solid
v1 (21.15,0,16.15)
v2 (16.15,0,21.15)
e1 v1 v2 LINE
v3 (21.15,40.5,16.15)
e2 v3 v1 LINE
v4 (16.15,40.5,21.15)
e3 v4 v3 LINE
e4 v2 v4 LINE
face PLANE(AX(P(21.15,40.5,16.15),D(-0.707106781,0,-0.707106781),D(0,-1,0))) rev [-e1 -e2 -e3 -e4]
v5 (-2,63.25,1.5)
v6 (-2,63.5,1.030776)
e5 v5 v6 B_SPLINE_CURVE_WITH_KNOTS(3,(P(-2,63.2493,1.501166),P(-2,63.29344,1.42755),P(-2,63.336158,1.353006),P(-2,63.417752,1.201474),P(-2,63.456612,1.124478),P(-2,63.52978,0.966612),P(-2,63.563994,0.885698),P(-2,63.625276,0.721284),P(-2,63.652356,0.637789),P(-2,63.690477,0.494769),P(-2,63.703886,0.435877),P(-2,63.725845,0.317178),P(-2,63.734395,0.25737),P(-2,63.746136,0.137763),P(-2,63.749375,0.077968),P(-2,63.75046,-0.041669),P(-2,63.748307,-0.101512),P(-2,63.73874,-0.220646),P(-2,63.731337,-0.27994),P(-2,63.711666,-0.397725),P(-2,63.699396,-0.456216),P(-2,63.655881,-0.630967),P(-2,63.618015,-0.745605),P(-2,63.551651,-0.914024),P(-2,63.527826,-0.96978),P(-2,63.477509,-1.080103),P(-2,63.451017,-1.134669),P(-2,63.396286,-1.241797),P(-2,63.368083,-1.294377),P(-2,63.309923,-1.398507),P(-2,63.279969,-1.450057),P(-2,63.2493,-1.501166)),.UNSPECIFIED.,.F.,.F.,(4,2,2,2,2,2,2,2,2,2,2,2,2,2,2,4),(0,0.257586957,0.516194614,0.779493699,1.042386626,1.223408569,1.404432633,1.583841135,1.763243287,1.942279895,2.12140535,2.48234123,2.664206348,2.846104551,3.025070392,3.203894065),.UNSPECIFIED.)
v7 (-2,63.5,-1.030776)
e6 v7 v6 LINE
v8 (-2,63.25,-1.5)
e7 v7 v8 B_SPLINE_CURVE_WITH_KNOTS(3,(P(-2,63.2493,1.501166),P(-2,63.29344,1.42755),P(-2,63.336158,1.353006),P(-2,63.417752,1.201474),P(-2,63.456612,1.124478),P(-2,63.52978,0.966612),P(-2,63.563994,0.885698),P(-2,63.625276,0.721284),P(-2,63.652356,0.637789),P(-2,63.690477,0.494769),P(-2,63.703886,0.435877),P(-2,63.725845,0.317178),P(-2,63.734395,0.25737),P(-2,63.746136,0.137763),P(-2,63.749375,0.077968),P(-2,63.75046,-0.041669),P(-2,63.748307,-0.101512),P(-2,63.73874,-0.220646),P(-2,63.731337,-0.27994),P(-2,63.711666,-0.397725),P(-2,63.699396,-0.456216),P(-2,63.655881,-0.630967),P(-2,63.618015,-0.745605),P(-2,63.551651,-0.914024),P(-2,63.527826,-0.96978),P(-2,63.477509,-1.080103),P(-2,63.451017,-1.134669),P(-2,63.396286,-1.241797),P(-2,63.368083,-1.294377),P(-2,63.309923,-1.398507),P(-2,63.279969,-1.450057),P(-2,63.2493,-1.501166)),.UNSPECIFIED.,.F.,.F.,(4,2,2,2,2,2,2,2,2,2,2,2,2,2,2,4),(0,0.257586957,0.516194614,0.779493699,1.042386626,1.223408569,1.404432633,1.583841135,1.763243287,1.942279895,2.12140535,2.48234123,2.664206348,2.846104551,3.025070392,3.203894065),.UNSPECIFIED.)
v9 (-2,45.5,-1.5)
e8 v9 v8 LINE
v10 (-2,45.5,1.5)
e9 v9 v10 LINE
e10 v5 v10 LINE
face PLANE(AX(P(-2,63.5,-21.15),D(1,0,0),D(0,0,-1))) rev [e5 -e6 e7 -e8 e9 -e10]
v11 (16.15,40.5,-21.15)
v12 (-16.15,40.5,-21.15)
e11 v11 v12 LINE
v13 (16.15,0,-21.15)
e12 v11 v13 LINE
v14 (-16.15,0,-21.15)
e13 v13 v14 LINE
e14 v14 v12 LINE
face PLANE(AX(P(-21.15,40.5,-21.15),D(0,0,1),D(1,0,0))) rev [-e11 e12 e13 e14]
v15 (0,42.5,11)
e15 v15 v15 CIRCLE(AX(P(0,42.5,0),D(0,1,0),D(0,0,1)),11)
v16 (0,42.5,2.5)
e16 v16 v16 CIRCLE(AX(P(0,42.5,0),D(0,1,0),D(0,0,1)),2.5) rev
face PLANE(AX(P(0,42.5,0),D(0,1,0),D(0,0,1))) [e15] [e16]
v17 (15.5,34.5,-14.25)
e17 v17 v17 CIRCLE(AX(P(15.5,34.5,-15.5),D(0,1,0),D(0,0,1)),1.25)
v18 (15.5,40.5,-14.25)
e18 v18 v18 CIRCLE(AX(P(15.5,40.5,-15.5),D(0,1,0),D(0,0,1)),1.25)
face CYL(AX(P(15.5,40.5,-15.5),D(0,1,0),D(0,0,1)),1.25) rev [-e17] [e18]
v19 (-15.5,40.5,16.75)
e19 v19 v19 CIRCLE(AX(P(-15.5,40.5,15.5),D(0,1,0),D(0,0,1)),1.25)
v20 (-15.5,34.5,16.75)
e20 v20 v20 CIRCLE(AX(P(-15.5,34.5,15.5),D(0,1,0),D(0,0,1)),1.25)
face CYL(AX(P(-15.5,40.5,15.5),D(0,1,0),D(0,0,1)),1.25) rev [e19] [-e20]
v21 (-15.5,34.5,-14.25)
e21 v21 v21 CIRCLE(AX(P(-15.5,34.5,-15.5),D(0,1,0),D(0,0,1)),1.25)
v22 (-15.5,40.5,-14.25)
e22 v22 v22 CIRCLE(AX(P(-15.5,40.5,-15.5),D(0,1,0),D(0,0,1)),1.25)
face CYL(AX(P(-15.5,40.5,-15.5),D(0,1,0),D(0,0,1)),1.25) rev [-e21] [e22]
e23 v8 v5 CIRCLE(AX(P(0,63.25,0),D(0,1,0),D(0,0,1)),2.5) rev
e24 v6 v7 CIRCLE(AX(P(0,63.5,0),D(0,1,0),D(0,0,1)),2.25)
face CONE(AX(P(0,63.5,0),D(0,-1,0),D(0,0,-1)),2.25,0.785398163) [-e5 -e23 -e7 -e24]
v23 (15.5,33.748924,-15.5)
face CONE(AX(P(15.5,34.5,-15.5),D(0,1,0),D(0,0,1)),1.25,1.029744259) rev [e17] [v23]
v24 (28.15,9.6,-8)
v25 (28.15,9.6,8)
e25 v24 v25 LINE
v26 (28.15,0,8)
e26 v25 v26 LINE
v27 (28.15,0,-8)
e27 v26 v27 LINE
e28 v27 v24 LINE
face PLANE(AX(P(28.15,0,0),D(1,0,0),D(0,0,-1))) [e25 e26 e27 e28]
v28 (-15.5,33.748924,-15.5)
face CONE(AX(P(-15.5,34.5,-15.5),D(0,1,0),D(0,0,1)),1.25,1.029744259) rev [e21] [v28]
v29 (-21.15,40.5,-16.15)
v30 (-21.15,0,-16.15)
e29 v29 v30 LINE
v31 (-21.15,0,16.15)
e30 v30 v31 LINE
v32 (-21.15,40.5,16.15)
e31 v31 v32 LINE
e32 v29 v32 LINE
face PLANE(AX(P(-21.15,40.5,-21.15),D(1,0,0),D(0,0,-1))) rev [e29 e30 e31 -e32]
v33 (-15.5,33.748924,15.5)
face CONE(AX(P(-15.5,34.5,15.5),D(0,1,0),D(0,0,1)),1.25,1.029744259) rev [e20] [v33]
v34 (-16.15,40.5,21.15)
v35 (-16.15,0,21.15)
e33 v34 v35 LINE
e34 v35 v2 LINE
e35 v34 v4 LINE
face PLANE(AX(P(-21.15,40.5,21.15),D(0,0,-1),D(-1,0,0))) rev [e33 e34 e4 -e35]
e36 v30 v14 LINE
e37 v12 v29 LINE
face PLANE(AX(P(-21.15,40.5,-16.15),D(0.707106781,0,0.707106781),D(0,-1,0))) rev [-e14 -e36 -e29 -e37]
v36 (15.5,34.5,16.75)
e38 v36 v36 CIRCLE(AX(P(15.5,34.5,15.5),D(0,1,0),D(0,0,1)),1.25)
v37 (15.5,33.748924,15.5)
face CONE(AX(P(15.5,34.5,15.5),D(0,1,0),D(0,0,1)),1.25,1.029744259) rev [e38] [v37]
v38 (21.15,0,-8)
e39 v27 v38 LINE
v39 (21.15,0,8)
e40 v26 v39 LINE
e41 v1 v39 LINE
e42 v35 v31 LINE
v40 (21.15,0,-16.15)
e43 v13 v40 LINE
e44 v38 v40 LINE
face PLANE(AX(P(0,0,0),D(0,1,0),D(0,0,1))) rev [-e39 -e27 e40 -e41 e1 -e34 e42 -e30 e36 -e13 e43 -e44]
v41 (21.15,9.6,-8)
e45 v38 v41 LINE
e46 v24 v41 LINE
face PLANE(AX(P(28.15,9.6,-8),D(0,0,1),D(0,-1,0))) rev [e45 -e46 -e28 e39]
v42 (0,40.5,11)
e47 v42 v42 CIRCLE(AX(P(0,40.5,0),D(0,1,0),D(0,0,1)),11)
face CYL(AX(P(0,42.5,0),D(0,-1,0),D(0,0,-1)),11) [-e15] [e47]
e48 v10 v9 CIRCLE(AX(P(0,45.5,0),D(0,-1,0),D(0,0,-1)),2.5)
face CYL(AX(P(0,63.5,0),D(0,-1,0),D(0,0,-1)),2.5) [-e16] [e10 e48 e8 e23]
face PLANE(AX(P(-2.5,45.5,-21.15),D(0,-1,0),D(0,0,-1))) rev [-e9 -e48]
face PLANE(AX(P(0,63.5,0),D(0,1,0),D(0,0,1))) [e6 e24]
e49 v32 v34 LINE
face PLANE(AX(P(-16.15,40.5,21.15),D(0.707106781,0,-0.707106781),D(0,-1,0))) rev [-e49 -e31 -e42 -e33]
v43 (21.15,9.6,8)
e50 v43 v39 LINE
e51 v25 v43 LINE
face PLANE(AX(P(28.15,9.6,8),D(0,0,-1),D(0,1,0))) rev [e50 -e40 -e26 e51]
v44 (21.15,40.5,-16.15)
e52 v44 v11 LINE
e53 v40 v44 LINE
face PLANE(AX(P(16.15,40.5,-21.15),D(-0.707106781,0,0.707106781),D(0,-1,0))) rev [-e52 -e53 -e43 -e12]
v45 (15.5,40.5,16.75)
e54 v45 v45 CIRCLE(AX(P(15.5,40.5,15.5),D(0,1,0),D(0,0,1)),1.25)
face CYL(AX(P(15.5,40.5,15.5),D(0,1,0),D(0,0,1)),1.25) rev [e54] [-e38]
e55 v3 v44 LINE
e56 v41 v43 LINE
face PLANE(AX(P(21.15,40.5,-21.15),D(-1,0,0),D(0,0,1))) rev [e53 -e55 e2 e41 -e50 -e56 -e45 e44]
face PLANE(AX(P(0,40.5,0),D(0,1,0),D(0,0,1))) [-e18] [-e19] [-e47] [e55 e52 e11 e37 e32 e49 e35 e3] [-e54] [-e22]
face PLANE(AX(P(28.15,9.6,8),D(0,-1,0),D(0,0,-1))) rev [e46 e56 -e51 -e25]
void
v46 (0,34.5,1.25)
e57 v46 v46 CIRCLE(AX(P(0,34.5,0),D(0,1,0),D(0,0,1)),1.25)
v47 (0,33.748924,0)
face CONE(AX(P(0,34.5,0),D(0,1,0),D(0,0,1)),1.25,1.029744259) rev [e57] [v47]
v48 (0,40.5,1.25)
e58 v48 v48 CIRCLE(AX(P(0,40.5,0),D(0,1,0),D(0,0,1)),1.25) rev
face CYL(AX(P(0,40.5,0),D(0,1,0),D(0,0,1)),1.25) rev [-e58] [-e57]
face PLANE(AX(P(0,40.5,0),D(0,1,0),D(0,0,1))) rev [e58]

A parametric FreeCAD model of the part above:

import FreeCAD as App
import Part
import Sketcher

V = App.Vector
Q = App.Units.Quantity


def edges_at(feature, points):
    """Names of the edges that pass closest to the given points."""
    edges = feature.Shape.Edges
    near = lambda p: min(range(len(edges)), key=lambda i: edges[i].distToShape(Part.Vertex(*p))[0])
    return sorted({f"Edge{near(p) + 1}" for p in points})

doc = App.newDocument("Part")
body = doc.addObject("PartDesign::Body", "Body")

# Sketch on XZ plane
sketch1 = body.newObject("Sketcher::SketchObject", "Sketch")
sketch1.AttachmentSupport = (doc.getObject("XZ_Plane"), [""])
sketch1.MapMode = "FlatFace"
sketch1.addGeometry(Part.LineSegment(V(-21.15, -21.15, 0), V(-21.15, 21.15, 0)), False)
sketch1.addGeometry(Part.LineSegment(V(-21.15, 21.15, 0), V(21.15, 21.15, 0)), False)
sketch1.addGeometry(Part.LineSegment(V(21.15, 21.15, 0), V(21.15, -21.15, 0)), False)
sketch1.addGeometry(Part.LineSegment(V(21.15, -21.15, 0), V(-21.15, -21.15, 0)), False)
sketch1.addConstraint(Sketcher.Constraint("Coincident", 0, 2, 1, 1))
sketch1.addConstraint(Sketcher.Constraint("Coincident", 1, 2, 2, 1))
sketch1.addConstraint(Sketcher.Constraint("Coincident", 2, 2, 3, 1))
sketch1.addConstraint(Sketcher.Constraint("Coincident", 3, 2, 0, 1))
sketch1.addConstraint(Sketcher.Constraint("Vertical", 0))
sketch1.addConstraint(Sketcher.Constraint("Horizontal", 1))
sketch1.addConstraint(Sketcher.Constraint("Vertical", 2))
sketch1.addConstraint(Sketcher.Constraint("Horizontal", 3))
sketch1.addConstraint(Sketcher.Constraint("Symmetric", 0, 2, 2, 2, -1, 1))
sketch1.addConstraint(Sketcher.Constraint("Equal", 3, 0))
sketch1.addConstraint(Sketcher.Constraint("DistanceX", 1, 1, 1, 2, Q("42.3 mm")))
pad1 = body.newObject("PartDesign::Pad", "Pad")
pad1.Profile = sketch1
pad1.Length = 40.5
pad1.Reversed = True

# Sketch on XZ plane
sketch2 = body.newObject("Sketcher::SketchObject", "Sketch001")
sketch2.AttachmentSupport = (doc.getObject("XZ_Plane"), [""])
sketch2.MapMode = "FlatFace"
sketch2.AttachmentOffset = App.Placement(V(0, 0, -40.5), App.Rotation())
sketch2.addGeometry(Part.Circle(V(0, 0, 0), V(0, 0, 1), 1.25), False)
sketch2.addGeometry(Part.Circle(V(15.5, -15.5, 0), V(0, 0, 1), 1.25), False)
sketch2.addGeometry(Part.Circle(V(-15.5, 15.5, 0), V(0, 0, 1), 1.25), False)
sketch2.addGeometry(Part.Circle(V(-15.5, -15.5, 0), V(0, 0, 1), 1.25), False)
sketch2.addGeometry(Part.Circle(V(15.5, 15.5, 0), V(0, 0, 1), 1.25), False)
sketch2.addConstraint(Sketcher.Constraint("Coincident", 0, 3, -1, 1))
sketch2.addConstraint(Sketcher.Constraint("Equal", 0, 1))
sketch2.addConstraint(Sketcher.Constraint("Equal", 1, 2))
sketch2.addConstraint(Sketcher.Constraint("Equal", 2, 3))
sketch2.addConstraint(Sketcher.Constraint("Equal", 3, 4))
sketch2.addConstraint(Sketcher.Constraint("Symmetric", 1, 3, 2, 3, -1, 1))
sketch2.addConstraint(Sketcher.Constraint("Symmetric", 3, 3, 4, 3, -1, 1))
sketch2.addConstraint(Sketcher.Constraint("Symmetric", 1, 3, 3, 3, -2))
sketch2.addConstraint(Sketcher.Constraint("Diameter", 0, Q("2.5 mm")))
sketch2.addConstraint(Sketcher.Constraint("DistanceX", 2, 3, 1, 3, Q("31 mm")))
sketch2.addConstraint(Sketcher.Constraint("DistanceY", 1, 3, 2, 3, Q("31 mm")))
doc.recompute()
hole = body.newObject("PartDesign::Hole", "Hole")
hole.Profile = sketch2
hole.ThreadType = "None"
hole.Diameter = 2.5
hole.DepthType = "Dimension"
hole.Depth = 6
hole.DrillPoint = "Angled"
hole.DrillPointAngle = 118
hole.Reversed = True
doc.recompute()

chamfer = body.newObject("PartDesign::Chamfer", "Chamfer")
chamfer.Base = (hole, edges_at(hole, [
    (21.15, 20.25, 21.15),
    (-21.15, 20.25, 21.15),
    (-21.15, 20.25, -21.15),
    (21.15, 20.25, -21.15),
]))
chamfer.Size = 5

# Sketch on XZ plane
sketch3 = body.newObject("Sketcher::SketchObject", "Sketch002")
sketch3.AttachmentSupport = (doc.getObject("XZ_Plane"), [""])
sketch3.MapMode = "FlatFace"
sketch3.AttachmentOffset = App.Placement(V(0, 0, -40.5), App.Rotation())
sketch3.addGeometry(Part.Circle(V(0, 0, 0), V(0, 0, 1), 11), False)
sketch3.addConstraint(Sketcher.Constraint("Coincident", 0, 3, -1, 1))
sketch3.addConstraint(Sketcher.Constraint("Diameter", 0, Q("22 mm")))
pad2 = body.newObject("PartDesign::Pad", "Pad001")
pad2.Profile = sketch3
pad2.Length = 2
pad2.Reversed = True

# Sketch on XZ plane
sketch4 = body.newObject("Sketcher::SketchObject", "Sketch003")
sketch4.AttachmentSupport = (doc.getObject("XZ_Plane"), [""])
sketch4.MapMode = "FlatFace"
sketch4.AttachmentOffset = App.Placement(V(0, 0, -40.5), App.Rotation())
sketch4.addGeometry(Part.Circle(V(0, 0, 0), V(0, 0, 1), 2.5), False)
sketch4.addConstraint(Sketcher.Constraint("Coincident", 0, 3, -1, 1))
sketch4.addConstraint(Sketcher.Constraint("Diameter", 0, Q("5 mm")))
pad3 = body.newObject("PartDesign::Pad", "Pad002")
pad3.Profile = sketch4
pad3.Length = 23
pad3.Reversed = True
doc.recompute()

chamfer2 = body.newObject("PartDesign::Chamfer", "Chamfer001")
chamfer2.Base = (pad3, edges_at(pad3, [(0, 63.5, -2.5)]))
chamfer2.Size = 0.25

# Sketch on XY plane
sketch5 = body.newObject("Sketcher::SketchObject", "Sketch004")
sketch5.AttachmentSupport = (doc.getObject("XY_Plane"), [""])
sketch5.MapMode = "FlatFace"
sketch5.addGeometry(Part.LineSegment(V(-2.5, 63.5, 0), V(-2.5, 45.5, 0)), False)
sketch5.addGeometry(Part.LineSegment(V(-2.5, 45.5, 0), V(-2, 45.5, 0)), False)
sketch5.addGeometry(Part.LineSegment(V(-2, 45.5, 0), V(-2, 63.5, 0)), False)
sketch5.addGeometry(Part.LineSegment(V(-2, 63.5, 0), V(-2.5, 63.5, 0)), False)
sketch5.addConstraint(Sketcher.Constraint("Coincident", 0, 2, 1, 1))
sketch5.addConstraint(Sketcher.Constraint("Coincident", 1, 2, 2, 1))
sketch5.addConstraint(Sketcher.Constraint("Coincident", 2, 2, 3, 1))
sketch5.addConstraint(Sketcher.Constraint("Coincident", 3, 2, 0, 1))
sketch5.addConstraint(Sketcher.Constraint("Vertical", 0))
sketch5.addConstraint(Sketcher.Constraint("Horizontal", 1))
sketch5.addConstraint(Sketcher.Constraint("Vertical", 2))
sketch5.addConstraint(Sketcher.Constraint("Horizontal", 3))
sketch5.addConstraint(Sketcher.Constraint("DistanceY", 0, 2, 0, 1, Q("18 mm")))
sketch5.addConstraint(Sketcher.Constraint("DistanceX", 1, 1, 1, 2, Q("0.5 mm")))
sketch5.addConstraint(Sketcher.Constraint("DistanceX", 1, 2, -1, 1, Q("2 mm")))
sketch5.addConstraint(Sketcher.Constraint("DistanceY", -1, 1, 0, 2, Q("45.5 mm")))
pocket1 = body.newObject("PartDesign::Pocket", "Pocket")
pocket1.Profile = sketch5
pocket1.Type = "ThroughAll"
pocket1.Midplane = True

# Sketch on YZ plane
sketch6 = body.newObject("Sketcher::SketchObject", "Sketch005")
sketch6.AttachmentSupport = (doc.getObject("YZ_Plane"), [""])
sketch6.MapMode = "FlatFace"
sketch6.AttachmentOffset = App.Placement(V(0, 0, 21.15), App.Rotation())
sketch6.addGeometry(Part.LineSegment(V(9.6, 8, 0), V(0, 8, 0)), False)
sketch6.addGeometry(Part.LineSegment(V(0, 8, 0), V(0, -8, 0)), False)
sketch6.addGeometry(Part.LineSegment(V(0, -8, 0), V(9.6, -8, 0)), False)
sketch6.addGeometry(Part.LineSegment(V(9.6, -8, 0), V(9.6, 8, 0)), False)
sketch6.addConstraint(Sketcher.Constraint("Coincident", 0, 2, 1, 1))
sketch6.addConstraint(Sketcher.Constraint("Coincident", 1, 2, 2, 1))
sketch6.addConstraint(Sketcher.Constraint("Coincident", 2, 2, 3, 1))
sketch6.addConstraint(Sketcher.Constraint("Coincident", 3, 2, 0, 1))
sketch6.addConstraint(Sketcher.Constraint("Horizontal", 0))
sketch6.addConstraint(Sketcher.Constraint("Vertical", 1))
sketch6.addConstraint(Sketcher.Constraint("Horizontal", 2))
sketch6.addConstraint(Sketcher.Constraint("Vertical", 3))
sketch6.addConstraint(Sketcher.Constraint("Symmetric", 0, 2, 1, 2, -1, 1))
sketch6.addConstraint(Sketcher.Constraint("DistanceY", 1, 2, 1, 1, Q("16 mm")))
sketch6.addConstraint(Sketcher.Constraint("DistanceX", 0, 2, 0, 1, Q("9.6 mm")))
pad4 = body.newObject("PartDesign::Pad", "Pad003")
pad4.Profile = sketch6
pad4.Length = 7

doc.recompute()
